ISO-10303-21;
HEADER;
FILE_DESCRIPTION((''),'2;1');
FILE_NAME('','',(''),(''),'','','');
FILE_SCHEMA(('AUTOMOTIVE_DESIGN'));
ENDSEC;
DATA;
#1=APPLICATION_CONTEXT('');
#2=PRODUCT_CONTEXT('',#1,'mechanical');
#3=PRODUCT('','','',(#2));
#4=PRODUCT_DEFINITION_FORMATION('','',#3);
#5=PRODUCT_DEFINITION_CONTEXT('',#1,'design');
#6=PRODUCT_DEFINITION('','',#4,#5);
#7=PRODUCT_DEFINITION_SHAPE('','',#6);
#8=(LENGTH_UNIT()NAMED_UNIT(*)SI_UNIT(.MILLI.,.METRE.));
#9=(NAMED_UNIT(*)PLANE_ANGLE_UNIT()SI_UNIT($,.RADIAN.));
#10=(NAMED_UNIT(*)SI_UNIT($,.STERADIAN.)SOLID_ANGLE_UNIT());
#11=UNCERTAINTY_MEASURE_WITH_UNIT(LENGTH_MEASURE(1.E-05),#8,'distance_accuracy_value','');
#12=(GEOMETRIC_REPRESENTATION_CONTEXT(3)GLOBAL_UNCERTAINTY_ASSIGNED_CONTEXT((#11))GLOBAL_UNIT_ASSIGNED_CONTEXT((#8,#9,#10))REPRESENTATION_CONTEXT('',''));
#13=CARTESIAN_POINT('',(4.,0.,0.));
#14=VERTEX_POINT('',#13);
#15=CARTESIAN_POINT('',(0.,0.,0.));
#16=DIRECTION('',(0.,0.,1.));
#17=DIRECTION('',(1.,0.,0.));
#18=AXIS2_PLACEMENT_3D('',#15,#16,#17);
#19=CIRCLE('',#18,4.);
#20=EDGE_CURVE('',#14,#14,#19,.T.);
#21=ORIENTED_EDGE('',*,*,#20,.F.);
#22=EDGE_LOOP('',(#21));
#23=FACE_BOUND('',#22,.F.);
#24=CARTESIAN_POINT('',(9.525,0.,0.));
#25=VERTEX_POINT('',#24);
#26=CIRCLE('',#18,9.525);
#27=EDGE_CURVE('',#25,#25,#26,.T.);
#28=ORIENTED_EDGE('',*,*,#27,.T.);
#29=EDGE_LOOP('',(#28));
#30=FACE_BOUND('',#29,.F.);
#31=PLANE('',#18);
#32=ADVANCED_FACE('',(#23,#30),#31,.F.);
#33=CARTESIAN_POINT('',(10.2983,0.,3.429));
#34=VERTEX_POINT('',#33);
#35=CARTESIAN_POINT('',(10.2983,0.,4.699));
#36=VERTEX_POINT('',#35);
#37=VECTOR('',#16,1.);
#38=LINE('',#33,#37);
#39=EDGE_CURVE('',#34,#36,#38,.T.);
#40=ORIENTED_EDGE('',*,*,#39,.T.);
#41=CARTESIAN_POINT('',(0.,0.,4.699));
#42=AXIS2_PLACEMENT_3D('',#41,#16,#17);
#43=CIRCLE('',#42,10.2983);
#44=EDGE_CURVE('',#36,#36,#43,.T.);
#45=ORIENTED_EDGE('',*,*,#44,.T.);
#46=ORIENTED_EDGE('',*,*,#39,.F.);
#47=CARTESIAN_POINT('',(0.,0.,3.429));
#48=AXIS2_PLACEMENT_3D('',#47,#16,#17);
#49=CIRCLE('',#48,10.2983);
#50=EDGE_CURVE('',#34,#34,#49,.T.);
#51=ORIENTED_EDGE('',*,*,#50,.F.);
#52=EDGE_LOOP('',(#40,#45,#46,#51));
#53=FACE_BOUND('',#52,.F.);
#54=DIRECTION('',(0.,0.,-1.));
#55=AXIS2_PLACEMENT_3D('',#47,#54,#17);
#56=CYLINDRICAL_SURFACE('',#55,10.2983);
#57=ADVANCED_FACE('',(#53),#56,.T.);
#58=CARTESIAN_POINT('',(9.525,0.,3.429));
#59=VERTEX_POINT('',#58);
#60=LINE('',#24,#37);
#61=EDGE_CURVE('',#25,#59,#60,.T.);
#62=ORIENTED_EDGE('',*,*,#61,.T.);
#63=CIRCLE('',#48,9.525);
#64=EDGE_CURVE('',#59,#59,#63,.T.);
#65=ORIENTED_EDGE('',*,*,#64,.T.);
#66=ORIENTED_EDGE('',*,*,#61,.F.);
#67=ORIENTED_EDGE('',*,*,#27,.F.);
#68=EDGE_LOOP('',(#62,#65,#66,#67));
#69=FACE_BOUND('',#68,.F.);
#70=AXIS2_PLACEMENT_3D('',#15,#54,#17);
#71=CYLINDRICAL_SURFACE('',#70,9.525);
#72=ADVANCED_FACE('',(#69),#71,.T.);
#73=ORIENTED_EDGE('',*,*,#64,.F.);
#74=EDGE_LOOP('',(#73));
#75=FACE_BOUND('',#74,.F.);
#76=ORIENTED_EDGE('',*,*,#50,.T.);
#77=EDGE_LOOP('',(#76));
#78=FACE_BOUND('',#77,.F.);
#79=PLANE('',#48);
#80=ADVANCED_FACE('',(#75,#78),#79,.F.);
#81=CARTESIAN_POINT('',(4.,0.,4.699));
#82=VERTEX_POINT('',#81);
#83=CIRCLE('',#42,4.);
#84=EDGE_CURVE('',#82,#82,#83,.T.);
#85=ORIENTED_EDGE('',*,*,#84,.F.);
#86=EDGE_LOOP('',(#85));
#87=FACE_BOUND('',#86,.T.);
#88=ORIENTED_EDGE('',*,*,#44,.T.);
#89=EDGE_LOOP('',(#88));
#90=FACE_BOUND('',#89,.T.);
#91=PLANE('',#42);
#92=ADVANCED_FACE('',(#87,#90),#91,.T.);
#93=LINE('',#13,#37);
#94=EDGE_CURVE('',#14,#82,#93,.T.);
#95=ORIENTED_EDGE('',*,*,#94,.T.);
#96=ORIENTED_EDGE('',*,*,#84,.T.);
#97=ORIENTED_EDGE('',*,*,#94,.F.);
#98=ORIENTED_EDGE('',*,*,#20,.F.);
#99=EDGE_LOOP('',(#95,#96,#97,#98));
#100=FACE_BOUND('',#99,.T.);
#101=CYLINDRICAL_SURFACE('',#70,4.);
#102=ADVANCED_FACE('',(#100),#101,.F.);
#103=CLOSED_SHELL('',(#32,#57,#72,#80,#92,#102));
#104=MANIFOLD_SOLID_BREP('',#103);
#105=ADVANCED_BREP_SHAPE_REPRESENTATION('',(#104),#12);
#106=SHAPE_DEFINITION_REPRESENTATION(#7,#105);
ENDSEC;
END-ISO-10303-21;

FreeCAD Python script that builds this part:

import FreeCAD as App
import Part
import Sketcher
Q = App.Units.Quantity

doc = App.newDocument("Part")
body = doc.addObject("PartDesign::Body", "Body")

# Sketch on XY plane
sketch1 = body.newObject("Sketcher::SketchObject", "Sketch")
sketch1.AttachmentSupport = (doc.getObject("XY_Plane"), [""])
sketch1.MapMode = "FlatFace"
sketch1.addGeometry([
    Part.Circle(App.Vector(0, 0, 0), App.Vector(0, 0, 1), 9.5),
    Part.Circle(App.Vector(0, 0, 0), App.Vector(0, 0, 1), 4),
], False)
sketch1.addConstraint([
    Sketcher.Constraint("Coincident", 0, 3, -1, 1),
    Sketcher.Constraint("Coincident", 1, 3, -1, 1),
    Sketcher.Constraint("Diameter", 0, Q("0.75 in")),
    Sketcher.Constraint("Diameter", 1, Q("8 mm")),
])
pad1 = body.newObject("PartDesign::Pad", "Pad")
pad1.Profile = sketch1
pad1.Length = Q("0.135 in")

# Sketch on XY plane
sketch2 = body.newObject("Sketcher::SketchObject", "Sketch001")
sketch2.AttachmentSupport = (doc.getObject("XY_Plane"), [""])
sketch2.MapMode = "FlatFace"
sketch2.AttachmentOffset = App.Placement(App.Vector(0, 0, 0.135 * 25.4), App.Rotation())
sketch2.addGeometry([
    Part.Circle(App.Vector(0, 0, 0), App.Vector(0, 0, 1), 10.3),
    Part.Circle(App.Vector(0, 0, 0), App.Vector(0, 0, 1), 4),
], False)
sketch2.addConstraint([
    Sketcher.Constraint("Coincident", 0, 3, -1, 1),
    Sketcher.Constraint("Coincident", 1, 3, -1, 1),
    Sketcher.Constraint("Diameter", 0, Q("0.8109 in")),
    Sketcher.Constraint("Diameter", 1, Q("8 mm")),
])
pad2 = body.newObject("PartDesign::Pad", "Pad001")
pad2.Profile = sketch2
pad2.Length = Q("0.05 in")

doc.recompute()
